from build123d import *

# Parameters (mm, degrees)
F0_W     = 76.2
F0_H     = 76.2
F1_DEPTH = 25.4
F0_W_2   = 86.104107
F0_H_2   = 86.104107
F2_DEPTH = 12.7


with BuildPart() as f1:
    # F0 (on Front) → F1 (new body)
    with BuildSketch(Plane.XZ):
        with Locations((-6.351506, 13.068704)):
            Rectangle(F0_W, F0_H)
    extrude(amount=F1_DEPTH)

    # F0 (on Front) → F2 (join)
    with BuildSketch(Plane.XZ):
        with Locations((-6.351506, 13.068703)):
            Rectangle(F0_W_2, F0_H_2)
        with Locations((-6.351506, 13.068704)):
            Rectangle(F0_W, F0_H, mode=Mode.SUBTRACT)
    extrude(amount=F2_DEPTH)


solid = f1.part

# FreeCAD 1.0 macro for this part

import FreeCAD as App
import Part
import Sketcher

V = App.Vector
Q = App.Units.Quantity

doc = App.newDocument("Part")
params = doc.addObject("Spreadsheet::Sheet", "Params")
for row, (alias, value) in enumerate([
    ("sketch1_width", "3 in"),
    ("pad1_length", "1 in"),
    ("sketch2_width", "3 in"),
    ("pad2_length", "0.5 in"),
], start=1):
    params.set(f"A{row}", alias)
    params.set(f"B{row}", "=" + value)
    params.setAlias(f"B{row}", alias)

body = doc.addObject("PartDesign::Body", "Body")

sketch1 = body.newObject("Sketcher::SketchObject", "Sketch")
sketch1.AttachmentSupport = (doc.getObject("XZ_Plane"), [""])
sketch1.MapMode = "FlatFace"
sketch1.addGeometry([
    Part.LineSegment(V(-44.451506, 51.168704, 0), V(-44.451506, -25.031296, 0)),
    Part.LineSegment(V(-44.451506, -25.031296, 0), V(31.748494, -25.031296, 0)),
    Part.LineSegment(V(31.748494, -25.031296, 0), V(31.748494, 51.168704, 0)),
    Part.LineSegment(V(31.748494, 51.168704, 0), V(-44.451506, 51.168704, 0)),
], False)
sketch1.addConstraint([
    Sketcher.Constraint("Coincident", 0, 2, 1, 1),
    Sketcher.Constraint("Coincident", 1, 2, 2, 1),
    Sketcher.Constraint("Coincident", 2, 2, 3, 1),
    Sketcher.Constraint("Coincident", 3, 2, 0, 1),
    Sketcher.Constraint("Vertical", 0),
    Sketcher.Constraint("Horizontal", 1),
    Sketcher.Constraint("Vertical", 2),
    Sketcher.Constraint("Horizontal", 3),
    Sketcher.Constraint("Equal", 3, 0),
    Sketcher.Constraint("DistanceX", 1, 1, 1, 2, Q("3 in")),
    Sketcher.Constraint("DistanceX", 0, 2, -1, 1, 44.451506),
    Sketcher.Constraint("DistanceY", 0, 2, -1, 1, 25.031296),
])
sketch1.setExpression("Constraints[9]", "Params.sketch1_width")
pad1 = body.newObject("PartDesign::Pad", "Pad")
pad1.Profile = sketch1
pad1.setExpression("Length", "Params.pad1_length")

sketch2 = body.newObject("Sketcher::SketchObject", "Sketch001")
sketch2.AttachmentSupport = (doc.getObject("XZ_Plane"), [""])
sketch2.MapMode = "FlatFace"
sketch2.addGeometry([
    Part.LineSegment(V(-49.40356, 56.120756, 0), V(-49.40356, -29.983351, 0)),
    Part.LineSegment(V(-49.40356, -29.983351, 0), V(36.700547, -29.983351, 0)),
    Part.LineSegment(V(36.700547, -29.983351, 0), V(36.700547, 56.120756, 0)),
    Part.LineSegment(V(36.700547, 56.120756, 0), V(-49.40356, 56.120756, 0)),
    Part.LineSegment(V(31.748494, -25.031296, 0), V(-44.451506, -25.031296, 0)),
    Part.LineSegment(V(-44.451506, -25.031296, 0), V(-44.451506, 51.168704, 0)),
    Part.LineSegment(V(-44.451506, 51.168704, 0), V(31.748494, 51.168704, 0)),
    Part.LineSegment(V(31.748494, 51.168704, 0), V(31.748494, -25.031296, 0)),
], False)
sketch2.addConstraint([
    Sketcher.Constraint("Coincident", 0, 2, 1, 1),
    Sketcher.Constraint("Coincident", 1, 2, 2, 1),
    Sketcher.Constraint("Coincident", 2, 2, 3, 1),
    Sketcher.Constraint("Coincident", 3, 2, 0, 1),
    Sketcher.Constraint("Coincident", 4, 2, 5, 1),
    Sketcher.Constraint("Coincident", 5, 2, 6, 1),
    Sketcher.Constraint("Coincident", 6, 2, 7, 1),
    Sketcher.Constraint("Coincident", 7, 2, 4, 1),
    Sketcher.Constraint("Vertical", 0),
    Sketcher.Constraint("Horizontal", 1),
    Sketcher.Constraint("Vertical", 2),
    Sketcher.Constraint("Horizontal", 3),
    Sketcher.Constraint("Horizontal", 4),
    Sketcher.Constraint("Vertical", 5),
    Sketcher.Constraint("Horizontal", 6),
    Sketcher.Constraint("Vertical", 7),
    Sketcher.Constraint("Equal", 3, 0),
    Sketcher.Constraint("Equal", 6, 5),
    Sketcher.Constraint("DistanceX", 4, 2, 4, 1, Q("3 in")),
    Sketcher.Constraint("DistanceX", 1, 1, 1, 2, 86.104107),
    Sketcher.Constraint("DistanceX", 0, 2, -1, 1, 49.40356),
    Sketcher.Constraint("DistanceY", 0, 2, -1, 1, 29.983351),
    Sketcher.Constraint("DistanceX", 4, 2, -1, 1, 44.451506),
    Sketcher.Constraint("DistanceY", 4, 2, -1, 1, 25.031296),
])
sketch2.setExpression("Constraints[18]", "Params.sketch2_width")
pad2 = body.newObject("PartDesign::Pad", "Pad001")
pad2.Profile = sketch2
pad2.setExpression("Length", "Params.pad2_length")

doc.recompute()
